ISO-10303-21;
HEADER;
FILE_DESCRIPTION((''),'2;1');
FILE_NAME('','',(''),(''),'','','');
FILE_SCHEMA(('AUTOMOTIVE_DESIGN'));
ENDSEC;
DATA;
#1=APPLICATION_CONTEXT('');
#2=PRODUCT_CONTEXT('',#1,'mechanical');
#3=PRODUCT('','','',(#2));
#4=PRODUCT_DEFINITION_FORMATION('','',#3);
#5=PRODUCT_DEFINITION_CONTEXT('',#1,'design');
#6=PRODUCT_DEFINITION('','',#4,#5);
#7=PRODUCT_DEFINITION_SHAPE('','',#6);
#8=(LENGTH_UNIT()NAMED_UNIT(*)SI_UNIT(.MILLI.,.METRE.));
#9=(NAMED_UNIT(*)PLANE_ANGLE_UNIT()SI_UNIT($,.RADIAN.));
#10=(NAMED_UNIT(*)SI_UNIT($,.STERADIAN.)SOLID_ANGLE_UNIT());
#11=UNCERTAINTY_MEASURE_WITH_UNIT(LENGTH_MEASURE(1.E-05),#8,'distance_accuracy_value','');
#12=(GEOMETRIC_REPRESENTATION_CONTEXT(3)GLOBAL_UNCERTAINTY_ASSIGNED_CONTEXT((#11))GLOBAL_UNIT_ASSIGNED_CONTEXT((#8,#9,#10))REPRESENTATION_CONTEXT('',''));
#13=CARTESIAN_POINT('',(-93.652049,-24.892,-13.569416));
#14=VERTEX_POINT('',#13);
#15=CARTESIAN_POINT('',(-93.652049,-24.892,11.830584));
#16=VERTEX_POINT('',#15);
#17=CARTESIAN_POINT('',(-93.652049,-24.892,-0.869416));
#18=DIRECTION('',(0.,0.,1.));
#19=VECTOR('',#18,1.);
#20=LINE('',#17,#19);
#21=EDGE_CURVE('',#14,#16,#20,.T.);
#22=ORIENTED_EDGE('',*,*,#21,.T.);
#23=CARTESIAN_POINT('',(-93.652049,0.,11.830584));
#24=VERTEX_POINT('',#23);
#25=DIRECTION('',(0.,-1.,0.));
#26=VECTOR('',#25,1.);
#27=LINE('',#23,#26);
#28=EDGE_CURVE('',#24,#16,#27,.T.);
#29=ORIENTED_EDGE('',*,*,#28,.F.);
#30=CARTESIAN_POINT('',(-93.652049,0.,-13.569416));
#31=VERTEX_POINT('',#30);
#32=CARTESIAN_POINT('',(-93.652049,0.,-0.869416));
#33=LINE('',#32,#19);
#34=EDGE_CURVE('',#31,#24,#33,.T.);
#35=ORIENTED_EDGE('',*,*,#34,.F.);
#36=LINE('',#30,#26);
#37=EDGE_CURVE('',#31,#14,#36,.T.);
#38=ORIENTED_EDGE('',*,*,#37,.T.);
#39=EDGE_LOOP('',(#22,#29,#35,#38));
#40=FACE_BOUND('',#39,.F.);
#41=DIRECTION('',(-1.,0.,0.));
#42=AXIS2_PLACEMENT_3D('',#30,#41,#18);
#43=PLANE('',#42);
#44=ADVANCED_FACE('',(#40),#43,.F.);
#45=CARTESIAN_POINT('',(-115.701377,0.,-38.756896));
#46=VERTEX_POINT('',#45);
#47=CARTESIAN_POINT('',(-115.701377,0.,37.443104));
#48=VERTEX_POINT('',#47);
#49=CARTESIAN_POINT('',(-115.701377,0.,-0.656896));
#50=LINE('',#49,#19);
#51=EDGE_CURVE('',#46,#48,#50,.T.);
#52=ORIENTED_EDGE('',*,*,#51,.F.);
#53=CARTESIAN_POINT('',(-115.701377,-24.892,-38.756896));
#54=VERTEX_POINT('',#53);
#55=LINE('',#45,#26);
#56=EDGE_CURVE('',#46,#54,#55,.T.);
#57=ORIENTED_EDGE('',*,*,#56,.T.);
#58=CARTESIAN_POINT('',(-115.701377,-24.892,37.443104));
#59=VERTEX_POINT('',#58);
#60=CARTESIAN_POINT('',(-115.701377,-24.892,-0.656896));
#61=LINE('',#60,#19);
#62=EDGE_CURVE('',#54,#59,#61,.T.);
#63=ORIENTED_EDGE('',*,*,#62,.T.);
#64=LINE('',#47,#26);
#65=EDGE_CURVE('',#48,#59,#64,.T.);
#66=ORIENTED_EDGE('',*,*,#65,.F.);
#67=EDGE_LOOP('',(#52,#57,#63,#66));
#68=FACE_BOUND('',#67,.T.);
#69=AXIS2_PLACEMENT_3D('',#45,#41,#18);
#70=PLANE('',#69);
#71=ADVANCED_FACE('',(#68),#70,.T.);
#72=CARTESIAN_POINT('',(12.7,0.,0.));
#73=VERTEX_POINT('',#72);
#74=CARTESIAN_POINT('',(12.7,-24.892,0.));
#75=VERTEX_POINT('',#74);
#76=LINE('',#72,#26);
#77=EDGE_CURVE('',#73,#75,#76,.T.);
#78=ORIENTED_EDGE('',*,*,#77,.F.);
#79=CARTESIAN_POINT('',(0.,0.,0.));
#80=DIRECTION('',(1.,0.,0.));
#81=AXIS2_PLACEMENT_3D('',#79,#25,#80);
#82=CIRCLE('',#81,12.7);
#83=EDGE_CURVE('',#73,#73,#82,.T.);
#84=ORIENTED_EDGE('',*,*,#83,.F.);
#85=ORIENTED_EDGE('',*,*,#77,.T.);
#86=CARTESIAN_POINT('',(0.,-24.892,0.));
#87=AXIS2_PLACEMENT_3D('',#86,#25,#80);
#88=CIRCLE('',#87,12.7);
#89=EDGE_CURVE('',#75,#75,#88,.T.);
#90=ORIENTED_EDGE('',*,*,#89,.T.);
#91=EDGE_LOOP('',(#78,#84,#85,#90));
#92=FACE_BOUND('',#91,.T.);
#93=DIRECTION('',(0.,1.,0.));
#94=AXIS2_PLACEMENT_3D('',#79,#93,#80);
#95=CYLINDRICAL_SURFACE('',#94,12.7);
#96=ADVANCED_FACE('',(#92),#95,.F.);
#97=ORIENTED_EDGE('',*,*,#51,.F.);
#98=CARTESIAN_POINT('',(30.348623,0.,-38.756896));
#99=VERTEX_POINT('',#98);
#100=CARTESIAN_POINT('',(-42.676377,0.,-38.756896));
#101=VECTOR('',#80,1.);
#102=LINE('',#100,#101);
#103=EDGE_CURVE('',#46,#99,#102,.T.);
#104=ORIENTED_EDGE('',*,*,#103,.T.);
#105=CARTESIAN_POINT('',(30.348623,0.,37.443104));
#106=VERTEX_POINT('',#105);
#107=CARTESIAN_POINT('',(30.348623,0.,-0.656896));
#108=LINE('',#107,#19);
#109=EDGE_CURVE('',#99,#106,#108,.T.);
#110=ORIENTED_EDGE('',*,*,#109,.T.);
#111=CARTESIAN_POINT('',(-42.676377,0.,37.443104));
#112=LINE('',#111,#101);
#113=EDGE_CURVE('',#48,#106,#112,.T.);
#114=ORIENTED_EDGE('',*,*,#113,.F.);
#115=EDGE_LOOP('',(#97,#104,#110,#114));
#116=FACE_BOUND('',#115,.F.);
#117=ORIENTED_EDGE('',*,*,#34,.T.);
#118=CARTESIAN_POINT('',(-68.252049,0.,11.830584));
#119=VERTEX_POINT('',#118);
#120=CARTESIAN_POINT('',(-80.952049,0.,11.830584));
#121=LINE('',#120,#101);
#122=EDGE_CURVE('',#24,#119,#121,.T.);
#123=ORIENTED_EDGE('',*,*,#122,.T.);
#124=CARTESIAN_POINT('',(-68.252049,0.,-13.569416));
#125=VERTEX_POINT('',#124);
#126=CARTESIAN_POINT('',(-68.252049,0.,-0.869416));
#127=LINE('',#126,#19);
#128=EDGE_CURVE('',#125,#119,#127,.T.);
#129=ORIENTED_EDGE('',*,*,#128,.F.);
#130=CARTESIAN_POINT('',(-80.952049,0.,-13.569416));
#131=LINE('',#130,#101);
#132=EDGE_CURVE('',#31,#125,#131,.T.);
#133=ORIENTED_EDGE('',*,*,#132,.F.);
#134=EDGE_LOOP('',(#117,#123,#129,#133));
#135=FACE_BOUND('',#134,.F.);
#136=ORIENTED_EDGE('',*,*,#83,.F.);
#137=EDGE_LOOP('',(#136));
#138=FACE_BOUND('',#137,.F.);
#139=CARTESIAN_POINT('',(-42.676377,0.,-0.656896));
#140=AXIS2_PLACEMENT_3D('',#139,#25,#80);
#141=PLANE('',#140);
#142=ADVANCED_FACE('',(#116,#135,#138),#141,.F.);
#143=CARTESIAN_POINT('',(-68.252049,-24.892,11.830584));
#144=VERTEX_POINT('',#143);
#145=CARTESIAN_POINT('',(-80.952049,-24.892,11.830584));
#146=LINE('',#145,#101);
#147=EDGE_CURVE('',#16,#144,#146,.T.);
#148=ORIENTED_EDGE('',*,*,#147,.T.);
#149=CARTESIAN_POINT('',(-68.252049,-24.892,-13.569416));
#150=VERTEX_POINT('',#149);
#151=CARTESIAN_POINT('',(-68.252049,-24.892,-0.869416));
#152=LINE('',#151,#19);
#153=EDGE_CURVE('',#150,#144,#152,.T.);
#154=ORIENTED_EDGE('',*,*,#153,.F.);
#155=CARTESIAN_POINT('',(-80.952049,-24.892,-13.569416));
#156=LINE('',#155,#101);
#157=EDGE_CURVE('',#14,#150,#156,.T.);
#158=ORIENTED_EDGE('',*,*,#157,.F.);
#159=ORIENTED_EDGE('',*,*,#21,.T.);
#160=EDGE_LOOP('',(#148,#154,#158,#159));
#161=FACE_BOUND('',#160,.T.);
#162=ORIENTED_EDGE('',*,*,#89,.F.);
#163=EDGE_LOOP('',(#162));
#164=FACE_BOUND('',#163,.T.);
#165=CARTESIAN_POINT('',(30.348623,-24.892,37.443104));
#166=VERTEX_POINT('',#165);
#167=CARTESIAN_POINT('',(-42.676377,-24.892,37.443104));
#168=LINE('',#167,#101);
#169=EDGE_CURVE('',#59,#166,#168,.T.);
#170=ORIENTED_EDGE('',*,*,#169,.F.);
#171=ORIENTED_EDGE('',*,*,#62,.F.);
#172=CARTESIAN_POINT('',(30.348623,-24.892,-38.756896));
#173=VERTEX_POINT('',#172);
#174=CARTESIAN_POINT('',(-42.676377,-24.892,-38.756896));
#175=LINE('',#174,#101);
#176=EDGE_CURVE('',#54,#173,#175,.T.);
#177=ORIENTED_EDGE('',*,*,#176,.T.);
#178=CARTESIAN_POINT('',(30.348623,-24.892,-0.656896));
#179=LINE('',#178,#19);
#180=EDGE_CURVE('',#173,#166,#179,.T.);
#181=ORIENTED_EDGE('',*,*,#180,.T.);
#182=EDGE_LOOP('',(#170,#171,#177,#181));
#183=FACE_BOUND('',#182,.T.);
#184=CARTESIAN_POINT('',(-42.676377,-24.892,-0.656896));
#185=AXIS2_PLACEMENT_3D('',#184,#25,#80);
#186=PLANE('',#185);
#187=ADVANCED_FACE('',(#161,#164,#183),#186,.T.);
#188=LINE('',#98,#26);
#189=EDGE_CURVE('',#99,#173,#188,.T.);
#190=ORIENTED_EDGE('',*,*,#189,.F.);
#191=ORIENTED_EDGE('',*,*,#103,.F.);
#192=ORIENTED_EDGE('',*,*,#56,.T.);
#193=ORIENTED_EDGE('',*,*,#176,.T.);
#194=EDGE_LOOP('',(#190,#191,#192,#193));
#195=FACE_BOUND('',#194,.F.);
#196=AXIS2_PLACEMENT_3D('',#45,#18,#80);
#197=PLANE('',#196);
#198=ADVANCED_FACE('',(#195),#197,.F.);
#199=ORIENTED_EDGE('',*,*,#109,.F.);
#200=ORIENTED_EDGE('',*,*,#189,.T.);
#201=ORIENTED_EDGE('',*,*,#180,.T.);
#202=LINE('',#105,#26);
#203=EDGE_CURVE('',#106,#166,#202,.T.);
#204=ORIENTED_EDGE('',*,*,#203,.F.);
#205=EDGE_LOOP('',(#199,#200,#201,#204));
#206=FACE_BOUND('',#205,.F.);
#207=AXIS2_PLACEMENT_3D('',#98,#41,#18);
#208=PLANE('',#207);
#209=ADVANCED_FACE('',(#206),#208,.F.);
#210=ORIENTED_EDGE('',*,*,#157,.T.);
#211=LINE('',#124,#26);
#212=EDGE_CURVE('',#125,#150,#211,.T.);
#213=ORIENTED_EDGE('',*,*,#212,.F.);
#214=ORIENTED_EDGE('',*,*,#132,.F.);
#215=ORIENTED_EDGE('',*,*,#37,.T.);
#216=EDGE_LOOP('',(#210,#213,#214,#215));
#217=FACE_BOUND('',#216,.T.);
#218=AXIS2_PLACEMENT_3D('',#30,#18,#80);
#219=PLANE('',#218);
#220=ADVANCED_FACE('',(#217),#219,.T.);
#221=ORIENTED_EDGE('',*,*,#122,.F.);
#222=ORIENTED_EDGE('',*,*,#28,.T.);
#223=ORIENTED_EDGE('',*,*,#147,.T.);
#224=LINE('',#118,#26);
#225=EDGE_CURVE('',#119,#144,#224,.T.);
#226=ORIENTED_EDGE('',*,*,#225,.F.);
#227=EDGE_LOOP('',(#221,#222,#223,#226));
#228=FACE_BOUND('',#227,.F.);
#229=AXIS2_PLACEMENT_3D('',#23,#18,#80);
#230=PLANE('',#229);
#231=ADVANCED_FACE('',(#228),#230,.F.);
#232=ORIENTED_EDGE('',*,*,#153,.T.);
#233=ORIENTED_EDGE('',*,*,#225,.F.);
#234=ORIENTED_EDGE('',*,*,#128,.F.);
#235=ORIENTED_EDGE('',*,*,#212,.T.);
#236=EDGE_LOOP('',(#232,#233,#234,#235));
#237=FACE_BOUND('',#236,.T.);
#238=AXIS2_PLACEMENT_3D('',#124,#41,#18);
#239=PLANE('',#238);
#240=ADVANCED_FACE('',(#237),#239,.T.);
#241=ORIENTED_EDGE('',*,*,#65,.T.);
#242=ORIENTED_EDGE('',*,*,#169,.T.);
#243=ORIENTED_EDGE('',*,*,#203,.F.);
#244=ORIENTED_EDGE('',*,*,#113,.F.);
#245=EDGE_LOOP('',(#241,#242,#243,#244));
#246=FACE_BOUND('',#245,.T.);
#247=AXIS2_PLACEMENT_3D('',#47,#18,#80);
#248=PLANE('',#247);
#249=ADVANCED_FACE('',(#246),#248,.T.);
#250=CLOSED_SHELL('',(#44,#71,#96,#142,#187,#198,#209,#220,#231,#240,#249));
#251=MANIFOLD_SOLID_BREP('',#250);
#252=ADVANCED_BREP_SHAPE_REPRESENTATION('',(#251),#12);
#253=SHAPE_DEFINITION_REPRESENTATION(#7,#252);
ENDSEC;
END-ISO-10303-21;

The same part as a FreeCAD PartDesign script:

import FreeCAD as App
import Part
import Sketcher

V = App.Vector
Q = App.Units.Quantity


def add_polygon(sketch, points):
    """Adds a closed chain of lines whose ends are joined by coincident constraints."""
    first, n = sketch.GeometryCount, len(points)
    for a, b in zip(points, points[1:] + points[:1]):
        sketch.addGeometry(Part.LineSegment(App.Vector(*a, 0), App.Vector(*b, 0)), False)
    for i in range(n):
        sketch.addConstraint(Sketcher.Constraint("Coincident", first + i, 2, first + (i + 1) % n, 1))

doc = App.newDocument("Part")
body = doc.addObject("PartDesign::Body", "Body")

sketch1 = body.newObject("Sketcher::SketchObject", "Sketch")
sketch1.AttachmentSupport = (doc.getObject("XZ_Plane"), [""])
sketch1.MapMode = "FlatFace"
add_polygon(sketch1, [(-116, 37), (-116, -39), (30, -39), (30, 37)])
add_polygon(sketch1, [(-68, -14), (-94, -14), (-94, 12), (-68, 12)])
sketch1.addGeometry(Part.Circle(V(0, 0, 0), V(0, 0, 1), 13), False)
sketch1.addConstraint(Sketcher.Constraint("Vertical", 0))
sketch1.addConstraint(Sketcher.Constraint("Horizontal", 1))
sketch1.addConstraint(Sketcher.Constraint("Vertical", 2))
sketch1.addConstraint(Sketcher.Constraint("Horizontal", 3))
sketch1.addConstraint(Sketcher.Constraint("Horizontal", 4))
sketch1.addConstraint(Sketcher.Constraint("Vertical", 5))
sketch1.addConstraint(Sketcher.Constraint("Horizontal", 6))
sketch1.addConstraint(Sketcher.Constraint("Vertical", 7))
sketch1.addConstraint(Sketcher.Constraint("Coincident", 8, 3, -1, 1))
sketch1.addConstraint(Sketcher.Constraint("Equal", 6, 5))
sketch1.addConstraint(Sketcher.Constraint("Diameter", 8, Q("1 in")))
sketch1.addConstraint(Sketcher.Constraint("DistanceX", 4, 2, 4, 1, Q("1 in")))
sketch1.addConstraint(Sketcher.Constraint("DistanceY", 0, 2, 0, 1, Q("3 in")))
sketch1.addConstraint(Sketcher.Constraint("DistanceX", 1, 1, 1, 2, Q("5.75 in")))
sketch1.addConstraint(Sketcher.Constraint("DistanceX", 4, 2, -1, 1, 93.652049))
sketch1.addConstraint(Sketcher.Constraint("DistanceY", 0, 2, 4, 2, 25.18748))
sketch1.addConstraint(Sketcher.Constraint("DistanceX", 0, 2, -1, 1, 115.701377))
sketch1.addConstraint(Sketcher.Constraint("DistanceY", 0, 2, -1, 1, 38.756896))
pad1 = body.newObject("PartDesign::Pad", "Pad")
pad1.Profile = sketch1
pad1.Length = Q("0.98 in")

doc.recompute()
